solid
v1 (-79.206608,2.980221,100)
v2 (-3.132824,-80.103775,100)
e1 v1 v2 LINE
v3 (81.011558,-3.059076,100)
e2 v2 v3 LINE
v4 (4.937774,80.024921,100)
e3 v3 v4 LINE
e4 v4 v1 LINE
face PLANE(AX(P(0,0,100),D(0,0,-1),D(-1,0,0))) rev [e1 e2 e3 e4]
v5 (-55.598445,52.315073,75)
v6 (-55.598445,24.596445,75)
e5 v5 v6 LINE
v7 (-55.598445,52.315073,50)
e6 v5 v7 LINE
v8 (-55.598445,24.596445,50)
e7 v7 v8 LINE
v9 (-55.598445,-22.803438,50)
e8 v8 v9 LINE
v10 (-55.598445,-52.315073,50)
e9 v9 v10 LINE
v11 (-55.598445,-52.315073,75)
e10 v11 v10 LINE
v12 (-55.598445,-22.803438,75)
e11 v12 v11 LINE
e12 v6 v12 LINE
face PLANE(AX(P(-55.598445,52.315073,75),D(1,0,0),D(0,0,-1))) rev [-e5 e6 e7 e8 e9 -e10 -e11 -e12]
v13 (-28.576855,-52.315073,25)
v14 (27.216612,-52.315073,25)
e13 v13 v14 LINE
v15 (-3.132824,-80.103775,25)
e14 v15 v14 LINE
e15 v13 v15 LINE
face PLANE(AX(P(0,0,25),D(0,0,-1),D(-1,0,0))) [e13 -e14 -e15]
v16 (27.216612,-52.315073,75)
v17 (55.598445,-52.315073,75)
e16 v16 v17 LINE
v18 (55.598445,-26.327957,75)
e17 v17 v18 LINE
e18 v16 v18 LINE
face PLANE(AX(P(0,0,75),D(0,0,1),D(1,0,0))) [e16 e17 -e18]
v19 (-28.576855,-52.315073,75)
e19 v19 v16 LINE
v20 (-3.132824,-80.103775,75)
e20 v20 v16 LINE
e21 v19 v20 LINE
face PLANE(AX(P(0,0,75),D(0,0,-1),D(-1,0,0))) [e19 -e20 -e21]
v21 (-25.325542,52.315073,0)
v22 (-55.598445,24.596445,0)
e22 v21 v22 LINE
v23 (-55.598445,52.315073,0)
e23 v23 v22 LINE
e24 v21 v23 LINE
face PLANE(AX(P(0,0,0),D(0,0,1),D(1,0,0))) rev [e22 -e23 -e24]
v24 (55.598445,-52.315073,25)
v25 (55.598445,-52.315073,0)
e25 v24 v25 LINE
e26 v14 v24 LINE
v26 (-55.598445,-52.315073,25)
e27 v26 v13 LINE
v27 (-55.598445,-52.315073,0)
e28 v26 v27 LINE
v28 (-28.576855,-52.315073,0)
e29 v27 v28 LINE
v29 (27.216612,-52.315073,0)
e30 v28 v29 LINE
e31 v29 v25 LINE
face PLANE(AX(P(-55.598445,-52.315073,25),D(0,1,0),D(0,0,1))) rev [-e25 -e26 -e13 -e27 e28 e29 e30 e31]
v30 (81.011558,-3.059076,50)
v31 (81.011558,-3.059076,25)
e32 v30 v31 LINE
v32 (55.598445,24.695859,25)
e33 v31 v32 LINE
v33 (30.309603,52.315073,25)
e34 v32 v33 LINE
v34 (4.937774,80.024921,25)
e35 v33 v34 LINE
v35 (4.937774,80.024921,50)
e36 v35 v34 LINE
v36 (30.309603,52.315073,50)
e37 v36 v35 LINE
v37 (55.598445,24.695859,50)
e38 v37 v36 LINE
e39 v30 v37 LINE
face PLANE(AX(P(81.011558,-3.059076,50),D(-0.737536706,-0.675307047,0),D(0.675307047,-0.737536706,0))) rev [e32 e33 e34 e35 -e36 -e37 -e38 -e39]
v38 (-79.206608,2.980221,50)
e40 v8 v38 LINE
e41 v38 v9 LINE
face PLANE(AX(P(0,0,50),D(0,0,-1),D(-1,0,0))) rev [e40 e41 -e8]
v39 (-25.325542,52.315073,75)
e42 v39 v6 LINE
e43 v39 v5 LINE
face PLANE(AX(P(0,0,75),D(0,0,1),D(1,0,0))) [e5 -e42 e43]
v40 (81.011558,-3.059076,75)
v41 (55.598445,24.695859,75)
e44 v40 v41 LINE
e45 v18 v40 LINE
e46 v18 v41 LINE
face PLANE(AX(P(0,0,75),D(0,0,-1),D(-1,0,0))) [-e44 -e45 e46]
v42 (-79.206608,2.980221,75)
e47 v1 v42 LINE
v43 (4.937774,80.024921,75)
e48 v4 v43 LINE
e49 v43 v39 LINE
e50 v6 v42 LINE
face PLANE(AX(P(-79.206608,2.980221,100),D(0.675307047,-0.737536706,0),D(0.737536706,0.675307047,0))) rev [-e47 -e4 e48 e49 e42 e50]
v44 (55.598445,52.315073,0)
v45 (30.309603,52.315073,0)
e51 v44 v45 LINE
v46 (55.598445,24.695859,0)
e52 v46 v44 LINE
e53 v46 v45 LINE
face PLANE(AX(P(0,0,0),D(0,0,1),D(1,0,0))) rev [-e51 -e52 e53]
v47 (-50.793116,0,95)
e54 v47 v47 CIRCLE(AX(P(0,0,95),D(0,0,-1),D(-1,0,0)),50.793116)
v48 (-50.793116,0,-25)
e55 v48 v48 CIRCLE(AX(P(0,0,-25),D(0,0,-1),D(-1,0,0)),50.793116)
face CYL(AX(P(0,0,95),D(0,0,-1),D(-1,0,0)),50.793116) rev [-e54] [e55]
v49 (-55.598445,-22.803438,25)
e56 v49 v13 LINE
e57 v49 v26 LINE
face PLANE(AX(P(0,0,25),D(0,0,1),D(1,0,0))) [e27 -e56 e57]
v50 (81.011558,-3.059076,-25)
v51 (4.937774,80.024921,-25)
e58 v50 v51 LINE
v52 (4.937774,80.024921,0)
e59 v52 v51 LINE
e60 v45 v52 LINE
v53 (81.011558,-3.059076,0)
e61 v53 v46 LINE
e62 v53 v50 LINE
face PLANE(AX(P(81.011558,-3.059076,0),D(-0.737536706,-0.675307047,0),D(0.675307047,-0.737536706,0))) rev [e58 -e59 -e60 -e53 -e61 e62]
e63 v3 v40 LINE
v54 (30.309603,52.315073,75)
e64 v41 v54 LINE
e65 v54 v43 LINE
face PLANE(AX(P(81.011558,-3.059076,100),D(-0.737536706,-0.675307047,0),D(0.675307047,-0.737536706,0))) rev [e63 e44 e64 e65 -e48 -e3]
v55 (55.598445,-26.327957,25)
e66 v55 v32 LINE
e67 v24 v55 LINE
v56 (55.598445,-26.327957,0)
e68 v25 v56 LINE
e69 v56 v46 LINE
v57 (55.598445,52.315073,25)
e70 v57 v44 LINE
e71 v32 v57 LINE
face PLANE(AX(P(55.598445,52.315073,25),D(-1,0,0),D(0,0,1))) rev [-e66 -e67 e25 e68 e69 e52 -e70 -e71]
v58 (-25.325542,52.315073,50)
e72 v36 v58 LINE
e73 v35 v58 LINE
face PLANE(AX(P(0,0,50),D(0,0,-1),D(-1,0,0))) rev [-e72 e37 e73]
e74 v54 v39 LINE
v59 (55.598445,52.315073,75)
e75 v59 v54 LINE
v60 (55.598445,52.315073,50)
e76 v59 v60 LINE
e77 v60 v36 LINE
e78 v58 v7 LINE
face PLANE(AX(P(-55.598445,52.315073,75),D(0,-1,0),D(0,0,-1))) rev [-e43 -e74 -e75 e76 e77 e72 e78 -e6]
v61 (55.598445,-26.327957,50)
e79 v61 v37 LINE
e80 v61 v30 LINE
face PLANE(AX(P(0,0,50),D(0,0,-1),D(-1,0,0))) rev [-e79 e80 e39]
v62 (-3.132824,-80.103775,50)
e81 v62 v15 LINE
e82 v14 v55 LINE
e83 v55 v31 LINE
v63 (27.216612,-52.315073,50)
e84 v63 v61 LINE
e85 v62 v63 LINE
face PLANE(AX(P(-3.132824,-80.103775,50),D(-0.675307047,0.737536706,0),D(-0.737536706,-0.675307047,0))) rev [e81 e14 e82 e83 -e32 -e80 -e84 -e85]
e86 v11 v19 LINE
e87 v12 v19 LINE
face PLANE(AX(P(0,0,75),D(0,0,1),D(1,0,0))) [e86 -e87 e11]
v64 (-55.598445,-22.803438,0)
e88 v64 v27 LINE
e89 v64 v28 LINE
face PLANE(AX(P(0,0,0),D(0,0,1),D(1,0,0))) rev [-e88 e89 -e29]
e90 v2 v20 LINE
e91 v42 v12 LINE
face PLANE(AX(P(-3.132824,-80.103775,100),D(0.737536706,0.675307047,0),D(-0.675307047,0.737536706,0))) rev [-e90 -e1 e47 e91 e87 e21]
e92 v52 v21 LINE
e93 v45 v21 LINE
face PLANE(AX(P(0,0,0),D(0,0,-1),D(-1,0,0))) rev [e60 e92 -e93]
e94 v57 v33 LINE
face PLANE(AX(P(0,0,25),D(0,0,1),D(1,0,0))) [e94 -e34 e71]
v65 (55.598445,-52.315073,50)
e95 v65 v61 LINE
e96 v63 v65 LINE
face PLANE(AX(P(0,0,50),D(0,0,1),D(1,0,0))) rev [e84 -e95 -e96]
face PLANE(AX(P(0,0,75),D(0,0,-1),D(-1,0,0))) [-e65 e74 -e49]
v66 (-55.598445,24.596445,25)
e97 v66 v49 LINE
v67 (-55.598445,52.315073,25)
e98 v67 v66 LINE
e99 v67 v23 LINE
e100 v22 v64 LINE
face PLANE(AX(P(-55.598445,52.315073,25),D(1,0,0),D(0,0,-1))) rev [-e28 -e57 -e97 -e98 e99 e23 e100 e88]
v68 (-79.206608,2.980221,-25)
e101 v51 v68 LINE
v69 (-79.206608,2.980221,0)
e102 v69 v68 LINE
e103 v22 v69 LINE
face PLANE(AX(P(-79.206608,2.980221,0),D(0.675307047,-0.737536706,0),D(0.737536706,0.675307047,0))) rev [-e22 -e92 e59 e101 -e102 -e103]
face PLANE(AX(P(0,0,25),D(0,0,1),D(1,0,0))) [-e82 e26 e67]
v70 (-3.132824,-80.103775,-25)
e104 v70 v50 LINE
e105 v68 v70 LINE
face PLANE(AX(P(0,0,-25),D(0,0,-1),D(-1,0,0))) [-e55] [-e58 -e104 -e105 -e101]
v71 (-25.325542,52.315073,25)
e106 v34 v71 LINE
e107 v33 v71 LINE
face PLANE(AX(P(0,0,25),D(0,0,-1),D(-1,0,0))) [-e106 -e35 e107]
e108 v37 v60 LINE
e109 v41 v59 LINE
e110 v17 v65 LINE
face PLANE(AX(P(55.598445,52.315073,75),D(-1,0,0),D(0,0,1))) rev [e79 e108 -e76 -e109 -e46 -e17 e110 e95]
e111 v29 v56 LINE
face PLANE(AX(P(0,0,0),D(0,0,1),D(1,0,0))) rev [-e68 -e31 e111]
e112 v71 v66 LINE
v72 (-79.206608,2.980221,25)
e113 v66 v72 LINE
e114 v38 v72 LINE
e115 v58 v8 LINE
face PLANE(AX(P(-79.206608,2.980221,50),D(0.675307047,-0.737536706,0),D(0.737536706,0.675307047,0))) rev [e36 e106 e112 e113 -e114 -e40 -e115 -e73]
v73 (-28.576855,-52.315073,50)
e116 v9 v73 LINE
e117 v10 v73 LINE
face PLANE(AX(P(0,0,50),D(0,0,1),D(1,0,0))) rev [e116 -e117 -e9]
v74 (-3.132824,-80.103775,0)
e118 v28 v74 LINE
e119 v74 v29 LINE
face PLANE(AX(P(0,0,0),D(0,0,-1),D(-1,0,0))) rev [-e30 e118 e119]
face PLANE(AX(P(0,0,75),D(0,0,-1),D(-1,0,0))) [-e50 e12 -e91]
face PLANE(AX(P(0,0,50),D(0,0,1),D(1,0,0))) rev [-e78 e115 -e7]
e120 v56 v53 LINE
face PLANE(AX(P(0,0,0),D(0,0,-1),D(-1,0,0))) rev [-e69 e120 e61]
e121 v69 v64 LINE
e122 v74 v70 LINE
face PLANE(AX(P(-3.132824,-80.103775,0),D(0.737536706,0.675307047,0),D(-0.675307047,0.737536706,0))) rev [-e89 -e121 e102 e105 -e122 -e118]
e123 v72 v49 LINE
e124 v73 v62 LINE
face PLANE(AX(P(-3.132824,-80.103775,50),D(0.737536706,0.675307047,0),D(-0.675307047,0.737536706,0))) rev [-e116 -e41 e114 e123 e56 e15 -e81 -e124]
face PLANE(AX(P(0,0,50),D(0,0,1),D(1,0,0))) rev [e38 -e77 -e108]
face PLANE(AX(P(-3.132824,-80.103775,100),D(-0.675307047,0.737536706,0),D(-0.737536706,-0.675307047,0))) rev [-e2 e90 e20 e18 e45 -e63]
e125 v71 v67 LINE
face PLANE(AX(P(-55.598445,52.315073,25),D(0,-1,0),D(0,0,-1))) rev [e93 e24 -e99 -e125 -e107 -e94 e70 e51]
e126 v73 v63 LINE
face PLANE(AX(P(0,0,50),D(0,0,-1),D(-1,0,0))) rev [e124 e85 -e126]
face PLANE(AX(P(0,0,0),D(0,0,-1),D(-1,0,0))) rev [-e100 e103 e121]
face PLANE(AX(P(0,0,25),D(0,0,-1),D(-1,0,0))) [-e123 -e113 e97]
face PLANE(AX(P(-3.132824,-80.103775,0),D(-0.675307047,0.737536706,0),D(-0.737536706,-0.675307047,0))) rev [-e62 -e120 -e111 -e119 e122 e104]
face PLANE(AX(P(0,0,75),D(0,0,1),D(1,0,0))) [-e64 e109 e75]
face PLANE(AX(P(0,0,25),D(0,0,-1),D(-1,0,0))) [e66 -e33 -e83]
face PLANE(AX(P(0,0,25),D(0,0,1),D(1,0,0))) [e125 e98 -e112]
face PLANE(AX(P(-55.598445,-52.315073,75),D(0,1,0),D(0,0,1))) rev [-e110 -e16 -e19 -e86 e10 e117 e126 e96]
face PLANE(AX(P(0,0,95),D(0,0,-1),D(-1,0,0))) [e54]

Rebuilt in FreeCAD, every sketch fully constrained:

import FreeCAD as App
import Part
import Sketcher
from FreeCAD import Vector

doc = App.newDocument("Part")
body = doc.addObject("PartDesign::Body", "Body")

sketch1 = body.newObject("Sketcher::SketchObject", "Sketch")
sketch1.AttachmentSupport = (doc.getObject("XY_Plane"), [""])
sketch1.MapMode = "FlatFace"
sketch1.addGeometry(Part.LineSegment(Vector(-56, 52, 0), Vector(-56, -52, 0)), False)
sketch1.addGeometry(Part.LineSegment(Vector(-56, -52, 0), Vector(56, -52, 0)), False)
sketch1.addGeometry(Part.LineSegment(Vector(56, -52, 0), Vector(56, 52, 0)), False)
sketch1.addGeometry(Part.LineSegment(Vector(56, 52, 0), Vector(-56, 52, 0)), False)
sketch1.addConstraint(Sketcher.Constraint("Coincident", 0, 2, 1, 1))
sketch1.addConstraint(Sketcher.Constraint("Coincident", 1, 2, 2, 1))
sketch1.addConstraint(Sketcher.Constraint("Coincident", 2, 2, 3, 1))
sketch1.addConstraint(Sketcher.Constraint("Coincident", 3, 2, 0, 1))
sketch1.addConstraint(Sketcher.Constraint("Vertical", 0))
sketch1.addConstraint(Sketcher.Constraint("Horizontal", 1))
sketch1.addConstraint(Sketcher.Constraint("Vertical", 2))
sketch1.addConstraint(Sketcher.Constraint("Horizontal", 3))
sketch1.addConstraint(Sketcher.Constraint("Symmetric", 0, 2, 2, 2, -1, 1))
sketch1.addConstraint(Sketcher.Constraint("DistanceX", 1, 1, 1, 2, 111.196891))
sketch1.addConstraint(Sketcher.Constraint("DistanceY", 0, 2, 0, 1, 104.630145))
pad1 = body.newObject("PartDesign::Pad", "Pad")
pad1.Profile = sketch1
pad1.Length = 25

sketch2 = body.newObject("Sketcher::SketchObject", "Sketch001")
sketch2.AttachmentSupport = (doc.getObject("XY_Plane"), [""])
sketch2.MapMode = "FlatFace"
sketch2.AttachmentOffset = App.Placement(Vector(0, 0, 25), App.Rotation())
sketch2.addGeometry(Part.LineSegment(Vector(-3, -80, 0), Vector(81, -3, 0)), False)
sketch2.addGeometry(Part.LineSegment(Vector(81, -3, 0), Vector(5, 80, 0)), False)
sketch2.addGeometry(Part.LineSegment(Vector(5, 80, 0), Vector(-79, 3, 0)), False)
sketch2.addGeometry(Part.LineSegment(Vector(-79, 3, 0), Vector(-3, -80, 0)), False)
sketch2.addConstraint(Sketcher.Constraint("Coincident", 0, 2, 1, 1))
sketch2.addConstraint(Sketcher.Constraint("Coincident", 1, 2, 2, 1))
sketch2.addConstraint(Sketcher.Constraint("Coincident", 2, 2, 3, 1))
sketch2.addConstraint(Sketcher.Constraint("Coincident", 3, 2, 0, 1))
sketch2.addConstraint(Sketcher.Constraint("Perpendicular", 0, 1))
sketch2.addConstraint(Sketcher.Constraint("Perpendicular", 1, 2))
sketch2.addConstraint(Sketcher.Constraint("Perpendicular", 2, 3))
sketch2.addConstraint(Sketcher.Constraint("Distance", 0, 114.088399))
sketch2.addConstraint(Sketcher.Constraint("DistanceY", 2, 2, 1, 2, 77.0447))
sketch2.addConstraint(Sketcher.Constraint("Distance", 1, 112.65066))
sketch2.addConstraint(Sketcher.Constraint("DistanceY", -1, 1, 1, 2, 80.024921))
sketch2.addConstraint(Sketcher.Constraint("DistanceX", 2, 2, -1, 1, 79.206608))
pad2 = body.newObject("PartDesign::Pad", "Pad001")
pad2.Profile = sketch2
pad2.Length = 25
doc.recompute()

linearpattern = body.newObject("PartDesign::LinearPattern", "LinearPattern")
linearpattern.Originals = [pad1, pad2]
linearpattern.Direction = (doc.getObject("Z_Axis"), [""])
linearpattern.Mode = "offset"
linearpattern.Offset = 50
linearpattern.Occurrences = 2
body.Tip = linearpattern
doc.recompute()

linearpattern2 = body.newObject("PartDesign::LinearPattern", "LinearPattern001")
linearpattern2.Originals = [pad2]
linearpattern2.Direction = (doc.getObject("Z_Axis"), [""])
linearpattern2.Mode = "offset"
linearpattern2.Offset = 50
linearpattern2.Occurrences = 2
linearpattern2.Reversed = True
body.Tip = linearpattern2

sketch3 = body.newObject("Sketcher::SketchObject", "Sketch002")
sketch3.AttachmentSupport = (doc.getObject("XY_Plane"), [""])
sketch3.MapMode = "FlatFace"
sketch3.AttachmentOffset = App.Placement(Vector(0, 0, -25), App.Rotation())
sketch3.addGeometry(Part.Circle(Vector(0, 0, 0), Vector(0, 0, 1), 51), False)
sketch3.addConstraint(Sketcher.Constraint("Coincident", 0, 3, -1, 1))
sketch3.addConstraint(Sketcher.Constraint("Diameter", 0, 101.586231))
pocket1 = body.newObject("PartDesign::Pocket", "Pocket")
pocket1.Profile = sketch3
pocket1.Length = 120
pocket1.Reversed = True

doc.recompute()
